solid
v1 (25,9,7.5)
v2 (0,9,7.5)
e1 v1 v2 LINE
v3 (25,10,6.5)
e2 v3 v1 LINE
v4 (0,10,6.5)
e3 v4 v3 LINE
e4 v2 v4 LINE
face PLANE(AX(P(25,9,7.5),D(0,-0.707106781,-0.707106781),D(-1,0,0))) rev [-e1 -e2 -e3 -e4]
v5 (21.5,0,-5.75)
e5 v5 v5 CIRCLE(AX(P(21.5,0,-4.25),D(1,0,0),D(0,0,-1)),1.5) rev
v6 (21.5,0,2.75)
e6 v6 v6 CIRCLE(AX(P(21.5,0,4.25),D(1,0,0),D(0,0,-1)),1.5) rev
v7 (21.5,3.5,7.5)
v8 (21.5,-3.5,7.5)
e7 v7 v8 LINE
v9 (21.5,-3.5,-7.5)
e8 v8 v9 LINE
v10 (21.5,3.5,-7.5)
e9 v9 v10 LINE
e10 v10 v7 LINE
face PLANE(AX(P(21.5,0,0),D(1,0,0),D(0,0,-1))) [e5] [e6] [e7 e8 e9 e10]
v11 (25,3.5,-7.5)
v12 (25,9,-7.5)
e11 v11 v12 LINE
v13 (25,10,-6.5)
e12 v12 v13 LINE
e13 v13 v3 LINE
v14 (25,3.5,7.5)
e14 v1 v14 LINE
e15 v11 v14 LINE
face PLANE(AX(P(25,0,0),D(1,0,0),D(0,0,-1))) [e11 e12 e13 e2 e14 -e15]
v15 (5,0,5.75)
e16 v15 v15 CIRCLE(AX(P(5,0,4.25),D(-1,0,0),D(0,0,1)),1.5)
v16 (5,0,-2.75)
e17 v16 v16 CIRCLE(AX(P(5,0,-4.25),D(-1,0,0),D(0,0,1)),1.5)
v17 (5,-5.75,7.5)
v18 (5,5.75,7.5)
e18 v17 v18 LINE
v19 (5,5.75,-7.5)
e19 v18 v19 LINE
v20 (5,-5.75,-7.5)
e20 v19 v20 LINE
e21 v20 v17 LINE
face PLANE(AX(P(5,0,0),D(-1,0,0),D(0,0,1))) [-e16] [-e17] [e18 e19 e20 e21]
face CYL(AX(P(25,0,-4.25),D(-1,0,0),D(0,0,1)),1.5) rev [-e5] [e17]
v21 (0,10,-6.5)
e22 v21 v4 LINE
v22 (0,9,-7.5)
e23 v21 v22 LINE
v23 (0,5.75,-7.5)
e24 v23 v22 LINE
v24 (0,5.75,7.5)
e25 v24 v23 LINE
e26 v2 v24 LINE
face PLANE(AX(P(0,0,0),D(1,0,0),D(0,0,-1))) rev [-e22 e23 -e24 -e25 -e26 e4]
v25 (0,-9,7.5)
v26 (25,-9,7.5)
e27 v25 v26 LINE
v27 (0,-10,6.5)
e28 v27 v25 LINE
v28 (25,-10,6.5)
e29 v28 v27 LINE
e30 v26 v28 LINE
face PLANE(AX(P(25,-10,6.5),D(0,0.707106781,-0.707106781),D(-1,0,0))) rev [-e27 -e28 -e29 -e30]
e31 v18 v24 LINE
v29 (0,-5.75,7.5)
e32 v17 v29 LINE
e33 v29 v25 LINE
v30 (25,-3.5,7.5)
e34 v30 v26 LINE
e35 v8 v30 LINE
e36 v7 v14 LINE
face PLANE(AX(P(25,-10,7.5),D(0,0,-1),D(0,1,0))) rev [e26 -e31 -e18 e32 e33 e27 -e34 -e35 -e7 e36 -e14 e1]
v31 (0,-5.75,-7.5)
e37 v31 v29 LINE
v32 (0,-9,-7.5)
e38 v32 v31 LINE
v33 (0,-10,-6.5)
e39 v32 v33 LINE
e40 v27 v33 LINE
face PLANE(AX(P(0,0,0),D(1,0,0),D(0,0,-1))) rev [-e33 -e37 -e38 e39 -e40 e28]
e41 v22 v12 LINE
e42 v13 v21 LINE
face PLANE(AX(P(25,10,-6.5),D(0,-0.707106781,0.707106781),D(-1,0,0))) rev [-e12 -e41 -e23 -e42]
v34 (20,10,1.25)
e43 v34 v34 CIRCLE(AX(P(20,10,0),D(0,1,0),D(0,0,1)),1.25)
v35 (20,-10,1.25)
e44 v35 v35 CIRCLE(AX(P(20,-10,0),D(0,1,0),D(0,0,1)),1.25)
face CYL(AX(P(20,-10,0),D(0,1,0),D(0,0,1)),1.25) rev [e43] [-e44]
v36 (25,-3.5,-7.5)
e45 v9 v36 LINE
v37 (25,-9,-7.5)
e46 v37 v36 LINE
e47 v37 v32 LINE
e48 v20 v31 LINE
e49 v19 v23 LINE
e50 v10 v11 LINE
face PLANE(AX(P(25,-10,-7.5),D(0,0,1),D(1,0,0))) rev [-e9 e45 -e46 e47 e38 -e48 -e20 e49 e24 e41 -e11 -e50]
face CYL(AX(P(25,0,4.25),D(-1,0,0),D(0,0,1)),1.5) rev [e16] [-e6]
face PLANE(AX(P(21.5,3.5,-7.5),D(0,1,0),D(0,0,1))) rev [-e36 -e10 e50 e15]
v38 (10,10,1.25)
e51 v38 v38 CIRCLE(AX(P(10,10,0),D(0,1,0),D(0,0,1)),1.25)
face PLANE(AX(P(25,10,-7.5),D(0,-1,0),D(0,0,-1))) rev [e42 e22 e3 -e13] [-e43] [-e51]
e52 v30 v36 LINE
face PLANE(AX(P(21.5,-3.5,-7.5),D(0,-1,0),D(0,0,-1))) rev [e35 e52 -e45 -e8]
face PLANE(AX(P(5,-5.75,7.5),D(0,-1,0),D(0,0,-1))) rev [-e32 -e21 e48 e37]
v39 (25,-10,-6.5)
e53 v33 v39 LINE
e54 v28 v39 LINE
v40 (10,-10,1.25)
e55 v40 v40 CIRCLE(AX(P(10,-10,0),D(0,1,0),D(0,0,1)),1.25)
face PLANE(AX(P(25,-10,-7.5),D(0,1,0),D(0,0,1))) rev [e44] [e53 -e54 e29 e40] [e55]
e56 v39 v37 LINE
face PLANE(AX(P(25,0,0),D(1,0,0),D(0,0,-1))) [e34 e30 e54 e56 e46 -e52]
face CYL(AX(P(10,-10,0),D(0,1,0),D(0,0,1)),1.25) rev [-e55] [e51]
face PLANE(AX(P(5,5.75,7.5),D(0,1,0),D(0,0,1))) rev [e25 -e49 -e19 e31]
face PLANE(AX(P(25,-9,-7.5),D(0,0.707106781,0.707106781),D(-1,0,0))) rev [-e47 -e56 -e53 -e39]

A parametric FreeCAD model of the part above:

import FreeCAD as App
import Part
import Sketcher
from FreeCAD import Vector


def edges_at(feature, points):
    """Names of the edges that pass closest to the given points."""
    edges = feature.Shape.Edges
    near = lambda p: min(range(len(edges)), key=lambda i: edges[i].distToShape(Part.Vertex(*p))[0])
    return sorted({f"Edge{near(p) + 1}" for p in points})


def add_polygon(sketch, points):
    """Adds a closed chain of lines whose ends are joined by coincident constraints."""
    first, n = sketch.GeometryCount, len(points)
    for a, b in zip(points, points[1:] + points[:1]):
        sketch.addGeometry(Part.LineSegment(App.Vector(*a, 0), App.Vector(*b, 0)), False)
    for i in range(n):
        sketch.addConstraint(Sketcher.Constraint("Coincident", first + i, 2, first + (i + 1) % n, 1))

doc = App.newDocument("Part")
body = doc.addObject("PartDesign::Body", "Body")

# Sketch on YZ plane
sketch1 = doc.addObject("Sketcher::SketchObject", "Sketch")
body.addObject(sketch1)
sketch1.AttachmentSupport = (doc.YZ_Plane, [""])
sketch1.MapMode = "FlatFace"
add_polygon(sketch1, [(10, 8), (-10, 8), (-10, -8), (10, -8)])  # lines 0-3
sketch1.addConstraint([
    Sketcher.Constraint("Horizontal", 0),
    Sketcher.Constraint("Vertical", 1),
    Sketcher.Constraint("Horizontal", 2),
    Sketcher.Constraint("Vertical", 3),
    Sketcher.Constraint("Symmetric", 0, 2, 2, 2, -1, 1),
    Sketcher.Constraint("DistanceX", 0, 2, 0, 1, 20.0),
    Sketcher.Constraint("DistanceY", 1, 2, 1, 1, 15.0),
])
pad1 = doc.addObject("PartDesign::Pad", "Pad")
body.addObject(pad1)
pad1.Profile = sketch1
pad1.Length = 25

# Sketch on YZ plane
sketch2 = doc.addObject("Sketcher::SketchObject", "Sketch001")
body.addObject(sketch2)
sketch2.AttachmentSupport = (doc.YZ_Plane, [""])
sketch2.MapMode = "FlatFace"
add_polygon(sketch2, [(6, -8), (-6, -8), (-6, 8), (6, 8)])  # lines 0-3
sketch2.addConstraint([
    Sketcher.Constraint("Horizontal", 0),
    Sketcher.Constraint("Vertical", 1),
    Sketcher.Constraint("Horizontal", 2),
    Sketcher.Constraint("Vertical", 3),
    Sketcher.Constraint("Symmetric", 0, 2, 2, 2, -1, 1),
    Sketcher.Constraint("DistanceY", 1, 1, 1, 2, 15.0),
    Sketcher.Constraint("DistanceX", 0, 2, 0, 1, 11.5),
])
pocket1 = doc.addObject("PartDesign::Pocket", "Pocket")
body.addObject(pocket1)
pocket1.Profile = sketch2
pocket1.Length = 5
pocket1.Reversed = True

# Sketch on YZ plane
sketch3 = doc.addObject("Sketcher::SketchObject", "Sketch002")
body.addObject(sketch3)
sketch3.AttachmentSupport = (doc.YZ_Plane, [""])
sketch3.MapMode = "FlatFace"
sketch3.AttachmentOffset = App.Placement(Vector(0, 0, 5), App.Rotation())
sketch3.addGeometry([
    Part.Circle(Vector(0, -4.2, 0), Vector(0, 0, 1), 1.5),
    Part.Circle(Vector(0, 4.2, 0), Vector(0, 0, 1), 1.5),
], False)
sketch3.addConstraint([
    Sketcher.Constraint("Equal", 0, 1),
    Sketcher.Constraint("Symmetric", 0, 3, 1, 3, -1, 1),
    Sketcher.Constraint("PointOnObject", 0, 3, -2),
    Sketcher.Constraint("Diameter", 0, 3.0),
    Sketcher.Constraint("DistanceY", 0, 3, 1, 3, 8.5),
])
pocket2 = doc.addObject("PartDesign::Pocket", "Pocket001")
body.addObject(pocket2)
pocket2.Profile = sketch3
pocket2.Type = "ThroughAll"
pocket2.Reversed = True

# Sketch on XZ plane
sketch4 = doc.addObject("Sketcher::SketchObject", "Sketch003")
body.addObject(sketch4)
sketch4.AttachmentSupport = (doc.XZ_Plane, [""])
sketch4.MapMode = "FlatFace"
sketch4.AttachmentOffset = App.Placement(Vector(0, 0, -10), App.Rotation())
sketch4.addGeometry([
    Part.Circle(Vector(20, 0, 0), Vector(0, 0, 1), 1.2),
    Part.Circle(Vector(10, 0, 0), Vector(0, 0, 1), 1.2),
], False)
sketch4.addConstraint([
    Sketcher.Constraint("Equal", 0, 1),
    Sketcher.Constraint("PointOnObject", 0, 3, -1),
    Sketcher.Constraint("PointOnObject", 1, 3, -1),
    Sketcher.Constraint("Diameter", 0, 2.5),
    Sketcher.Constraint("DistanceX", -1, 1, 0, 3, 20.0),
    Sketcher.Constraint("DistanceX", -1, 1, 1, 3, 10.0),
])
pocket3 = doc.addObject("PartDesign::Pocket", "Pocket002")
body.addObject(pocket3)
pocket3.Profile = sketch4
pocket3.Type = "ThroughAll"
pocket3.Reversed = True
doc.recompute()

chamfer = doc.addObject("PartDesign::Chamfer", "Chamfer")
body.addObject(chamfer)
chamfer.Base = (pocket3, edges_at(pocket3, [
    (12.5, 10, 7.5),
    (12.5, 10, -7.5),
    (12.5, -10, -7.5),
    (12.5, -10, 7.5),
]))
chamfer.Size = 1

# Sketch on YZ plane
sketch5 = doc.addObject("Sketcher::SketchObject", "Sketch004")
body.addObject(sketch5)
sketch5.AttachmentSupport = (doc.YZ_Plane, [""])
sketch5.MapMode = "FlatFace"
sketch5.AttachmentOffset = App.Placement(Vector(0, 0, 25), App.Rotation())
add_polygon(sketch5, [(4, 8), (-4, 8), (-4, -8), (4, -8)])  # lines 0-3
sketch5.addConstraint([
    Sketcher.Constraint("Horizontal", 0),
    Sketcher.Constraint("Vertical", 1),
    Sketcher.Constraint("Horizontal", 2),
    Sketcher.Constraint("Vertical", 3),
    Sketcher.Constraint("Symmetric", 0, 2, 2, 2, -1, 1),
    Sketcher.Constraint("DistanceX", 0, 2, 0, 1, 7.0),
    Sketcher.Constraint("DistanceY", 1, 2, 1, 1, 15.0),
])
pocket4 = doc.addObject("PartDesign::Pocket", "Pocket003")
body.addObject(pocket4)
pocket4.Profile = sketch5
pocket4.Length = 3.5

doc.recompute()
